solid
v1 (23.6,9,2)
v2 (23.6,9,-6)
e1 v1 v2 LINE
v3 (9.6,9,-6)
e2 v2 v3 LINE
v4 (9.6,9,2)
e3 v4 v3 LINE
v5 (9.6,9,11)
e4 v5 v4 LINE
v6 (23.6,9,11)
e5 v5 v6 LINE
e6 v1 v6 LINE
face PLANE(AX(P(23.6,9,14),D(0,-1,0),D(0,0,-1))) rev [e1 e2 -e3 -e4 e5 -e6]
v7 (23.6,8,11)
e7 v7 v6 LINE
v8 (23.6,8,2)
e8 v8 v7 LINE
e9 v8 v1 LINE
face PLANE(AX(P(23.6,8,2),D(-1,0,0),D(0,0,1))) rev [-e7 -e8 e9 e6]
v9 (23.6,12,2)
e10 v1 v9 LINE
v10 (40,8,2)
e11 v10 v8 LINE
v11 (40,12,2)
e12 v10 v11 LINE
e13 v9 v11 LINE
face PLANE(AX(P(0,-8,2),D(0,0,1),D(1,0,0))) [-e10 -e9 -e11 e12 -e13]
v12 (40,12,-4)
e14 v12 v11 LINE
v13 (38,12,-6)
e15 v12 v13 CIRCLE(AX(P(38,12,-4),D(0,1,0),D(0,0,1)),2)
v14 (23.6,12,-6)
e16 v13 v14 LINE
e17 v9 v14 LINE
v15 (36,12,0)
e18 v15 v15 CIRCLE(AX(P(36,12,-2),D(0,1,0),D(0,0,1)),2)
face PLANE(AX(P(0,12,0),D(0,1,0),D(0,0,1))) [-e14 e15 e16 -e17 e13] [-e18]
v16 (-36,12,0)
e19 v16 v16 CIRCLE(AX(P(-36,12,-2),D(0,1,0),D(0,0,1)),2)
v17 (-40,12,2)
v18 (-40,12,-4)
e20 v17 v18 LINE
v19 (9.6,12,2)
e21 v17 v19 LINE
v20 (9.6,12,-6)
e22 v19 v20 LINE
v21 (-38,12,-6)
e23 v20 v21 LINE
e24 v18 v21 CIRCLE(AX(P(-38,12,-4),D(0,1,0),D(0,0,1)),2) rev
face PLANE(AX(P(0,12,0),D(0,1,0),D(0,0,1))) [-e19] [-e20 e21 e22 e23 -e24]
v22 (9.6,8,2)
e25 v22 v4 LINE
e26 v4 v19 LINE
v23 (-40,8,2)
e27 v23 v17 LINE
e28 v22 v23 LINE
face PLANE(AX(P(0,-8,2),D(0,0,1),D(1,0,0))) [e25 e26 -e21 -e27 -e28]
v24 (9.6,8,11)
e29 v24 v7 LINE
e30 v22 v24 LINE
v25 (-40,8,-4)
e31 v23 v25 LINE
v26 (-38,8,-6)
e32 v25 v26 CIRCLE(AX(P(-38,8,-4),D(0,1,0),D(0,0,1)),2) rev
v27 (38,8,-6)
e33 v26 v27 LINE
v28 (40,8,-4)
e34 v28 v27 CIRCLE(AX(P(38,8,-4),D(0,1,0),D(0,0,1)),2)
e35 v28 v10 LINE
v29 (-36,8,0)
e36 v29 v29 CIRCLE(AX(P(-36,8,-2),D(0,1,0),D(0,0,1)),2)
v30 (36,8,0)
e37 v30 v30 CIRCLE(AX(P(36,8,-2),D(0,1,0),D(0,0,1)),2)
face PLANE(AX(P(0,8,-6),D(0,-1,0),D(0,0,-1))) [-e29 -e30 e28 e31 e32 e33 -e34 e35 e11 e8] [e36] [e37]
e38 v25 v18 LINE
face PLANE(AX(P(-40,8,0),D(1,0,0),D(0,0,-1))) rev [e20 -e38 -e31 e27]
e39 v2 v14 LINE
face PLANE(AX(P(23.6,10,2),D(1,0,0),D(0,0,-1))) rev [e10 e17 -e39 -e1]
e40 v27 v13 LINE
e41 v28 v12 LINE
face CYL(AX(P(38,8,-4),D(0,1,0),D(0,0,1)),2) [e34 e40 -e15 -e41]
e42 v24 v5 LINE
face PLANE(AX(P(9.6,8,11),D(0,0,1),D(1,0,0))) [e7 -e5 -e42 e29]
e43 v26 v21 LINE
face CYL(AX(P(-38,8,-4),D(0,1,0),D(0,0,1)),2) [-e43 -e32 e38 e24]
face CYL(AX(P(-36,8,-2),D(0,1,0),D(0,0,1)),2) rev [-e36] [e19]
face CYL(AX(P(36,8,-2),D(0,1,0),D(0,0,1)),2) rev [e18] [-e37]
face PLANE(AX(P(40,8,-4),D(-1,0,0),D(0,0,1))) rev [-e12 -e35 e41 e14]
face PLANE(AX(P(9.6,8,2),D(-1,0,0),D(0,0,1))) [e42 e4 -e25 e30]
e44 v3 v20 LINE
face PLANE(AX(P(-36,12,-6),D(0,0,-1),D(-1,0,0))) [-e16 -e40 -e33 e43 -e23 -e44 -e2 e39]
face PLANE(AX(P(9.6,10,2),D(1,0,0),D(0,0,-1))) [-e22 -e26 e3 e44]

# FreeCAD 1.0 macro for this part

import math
import FreeCAD as App
import Part
import Sketcher


def add_polygon(sketch, points):
    """Adds a closed chain of lines whose ends are joined by coincident constraints."""
    first, n = sketch.GeometryCount, len(points)
    for a, b in zip(points, points[1:] + points[:1]):
        sketch.addGeometry(Part.LineSegment(App.Vector(*a, 0), App.Vector(*b, 0)), False)
    for i in range(n):
        sketch.addConstraint(Sketcher.Constraint("Coincident", first + i, 2, first + (i + 1) % n, 1))

doc = App.newDocument("Part")
body = doc.addObject("PartDesign::Body", "Body")

sketch1 = doc.addObject("Sketcher::SketchObject", "Sketch")
body.addObject(sketch1)
sketch1.AttachmentSupport = (doc.XZ_Plane, [""])
sketch1.MapMode = "FlatFace"
add_polygon(sketch1, [(-40, 6), (40, 6), (40, -6), (-40, -6)])
sketch1.addConstraint([
    Sketcher.Constraint("Horizontal", 0),
    Sketcher.Constraint("Vertical", 1),
    Sketcher.Constraint("Horizontal", 2),
    Sketcher.Constraint("Vertical", 3),
    Sketcher.Constraint("Symmetric", 0, 2, 2, 2, -1, 1),
    Sketcher.Constraint("DistanceX", 0, 1, 0, 2, 80.0),
    Sketcher.Constraint("DistanceY", 1, 2, 1, 1, 12.0),
])
pad1 = doc.addObject("PartDesign::Pad", "Pad")
body.addObject(pad1)
pad1.Profile = sketch1
pad1.Length = 12
pad1.Reversed = True

sketch2 = doc.addObject("Sketcher::SketchObject", "Sketch001")
body.addObject(sketch2)
sketch2.AttachmentSupport = (doc.XY_Plane, [""])
sketch2.MapMode = "FlatFace"
sketch2.AttachmentOffset = App.Placement(App.Vector(0, 0, 6), App.Rotation())
add_polygon(sketch2, [(-28, 0), (28, 0), (28, 8), (-28, 8)])
add_polygon(sketch2, [(-40, 4), (-32, 4), (-32, 12), (-40, 12)])
add_polygon(sketch2, [(32, 4), (40, 4), (40, 12), (32, 12)])
sketch2.addConstraint([
    Sketcher.Constraint("Horizontal", 0),
    Sketcher.Constraint("Vertical", 1),
    Sketcher.Constraint("Horizontal", 2),
    Sketcher.Constraint("Vertical", 3),
    Sketcher.Constraint("Horizontal", 4),
    Sketcher.Constraint("Vertical", 5),
    Sketcher.Constraint("Horizontal", 6),
    Sketcher.Constraint("Vertical", 7),
    Sketcher.Constraint("Horizontal", 8),
    Sketcher.Constraint("Vertical", 9),
    Sketcher.Constraint("Horizontal", 10),
    Sketcher.Constraint("Vertical", 11),
    Sketcher.Constraint("Symmetric", 0, 2, 3, 2, -1, 1),
    Sketcher.Constraint("Symmetric", 7, 2, 8, 2, -2),
    Sketcher.Constraint("Symmetric", 5, 2, 10, 2, -2),
    Sketcher.Constraint("Equal", 10, 1),
    Sketcher.Constraint("Equal", 3, 5),
    Sketcher.Constraint("DistanceX", 0, 1, 0, 2, 56.0),
    Sketcher.Constraint("DistanceX", 4, 1, 4, 2, 8.0),
    Sketcher.Constraint("DistanceX", 4, 2, -1, 1, 32.0),
    Sketcher.Constraint("DistanceY", -1, 1, 4, 2, 4.0),
])
pocket1 = doc.addObject("PartDesign::Pocket", "Pocket")
body.addObject(pocket1)
pocket1.Profile = sketch2
pocket1.Length = 12

sketch3 = doc.addObject("Sketcher::SketchObject", "Sketch002")
body.addObject(sketch3)
sketch3.AttachmentSupport = (doc.XZ_Plane, [""])
sketch3.MapMode = "FlatFace"
sketch3.AttachmentOffset = App.Placement(App.Vector(0, 0, -12), App.Rotation())
sketch3.addGeometry([
    Part.LineSegment(App.Vector(-40, -6, 0), App.Vector(-40, -4, 0)),
    Part.ArcOfCircle(Part.Circle(App.Vector(-38, -4, 0), App.Vector(0, 0, 1), 2), math.radians(-180), math.radians(-90)),
    Part.LineSegment(App.Vector(-38, -6, 0), App.Vector(-40, -6, 0)),
    Part.Circle(App.Vector(-36, -2, 0), App.Vector(0, 0, 1), 2),
    Part.ArcOfCircle(Part.Circle(App.Vector(38, -4, 0), App.Vector(0, 0, 1), 2), math.radians(-90), math.radians(0)),
    Part.LineSegment(App.Vector(40, -4, 0), App.Vector(40, -6, 0)),
    Part.LineSegment(App.Vector(40, -6, 0), App.Vector(38, -6, 0)),
    Part.Circle(App.Vector(36, -2, 0), App.Vector(0, 0, 1), 2),
], False)
sketch3.addConstraint([
    Sketcher.Constraint("Tangent", 0, 2, 1, 1),
    Sketcher.Constraint("Tangent", 1, 2, 2, 1),
    Sketcher.Constraint("Coincident", 2, 2, 0, 1),
    Sketcher.Constraint("Tangent", 4, 2, 5, 1),
    Sketcher.Constraint("Coincident", 5, 2, 6, 1),
    Sketcher.Constraint("Tangent", 6, 2, 4, 1),
    Sketcher.Constraint("Vertical", 0),
    Sketcher.Constraint("Horizontal", 2),
    Sketcher.Constraint("Vertical", 5),
    Sketcher.Constraint("Horizontal", 6),
    Sketcher.Constraint("Equal", 1, 3),
    Sketcher.Constraint("Equal", 3, 4),
    Sketcher.Constraint("Equal", 4, 7),
    Sketcher.Constraint("Symmetric", 1, 3, 4, 3, -2),
    Sketcher.Constraint("Symmetric", 3, 3, 7, 3, -2),
    Sketcher.Constraint("Diameter", 3, 4.0),
    Sketcher.Constraint("DistanceX", 1, 3, -1, 1, 38.0),
    Sketcher.Constraint("DistanceY", 1, 3, -1, 1, 4.0),
    Sketcher.Constraint("DistanceX", 3, 3, -1, 1, 36.0),
    Sketcher.Constraint("DistanceY", 3, 3, -1, 1, 2.0),
])
pocket2 = doc.addObject("PartDesign::Pocket", "Pocket001")
body.addObject(pocket2)
pocket2.Profile = sketch3
pocket2.Length = 12
pocket2.Reversed = True

sketch4 = doc.addObject("Sketcher::SketchObject", "Sketch003")
body.addObject(sketch4)
sketch4.AttachmentSupport = (doc.XZ_Plane, [""])
sketch4.MapMode = "FlatFace"
sketch4.AttachmentOffset = App.Placement(App.Vector(0, 0, -12), App.Rotation())
add_polygon(sketch4, [(-21, -6), (-21, 6), (-12, 6), (-12, 0), (12, 0), (12, 6), (21, 6), (21, -6)])
sketch4.addConstraint([
    Sketcher.Constraint("Vertical", 0),
    Sketcher.Constraint("Horizontal", 1),
    Sketcher.Constraint("Vertical", 2),
    Sketcher.Constraint("Horizontal", 3),
    Sketcher.Constraint("Vertical", 4),
    Sketcher.Constraint("Horizontal", 5),
    Sketcher.Constraint("Vertical", 6),
    Sketcher.Constraint("Horizontal", 7),
    Sketcher.Constraint("PointOnObject", 2, 2, -1),
    Sketcher.Constraint("Horizontal", 1, 2, 4, 2),
    Sketcher.Constraint("DistanceX", 1, 1, 1, 2, 9.0),
    Sketcher.Constraint("DistanceY", 0, 1, 0, 2, 12.0),
    Sketcher.Constraint("DistanceY", 2, 2, 2, 1, 6.0),
    Sketcher.Constraint("DistanceX", 3, 1, 3, 2, 24.18),
    Sketcher.Constraint("DistanceX", 5, 1, 5, 2, 9.04),
    Sketcher.Constraint("DistanceX", 0, 2, -1, 1, 21.1),
])
pocket3 = doc.addObject("PartDesign::Pocket", "Pocket002")
body.addObject(pocket3)
pocket3.Profile = sketch4
pocket3.Length = 1
pocket3.Reversed = True

sketch5 = doc.addObject("Sketcher::SketchObject", "Sketch004")
body.addObject(sketch5)
sketch5.AttachmentSupport = (doc.XZ_Plane, [""])
sketch5.MapMode = "FlatFace"
sketch5.AttachmentOffset = App.Placement(App.Vector(0, 0, -12), App.Rotation())
add_polygon(sketch5, [(-40, 2), (-40, 6), (40, 6), (40, 2)])
sketch5.addConstraint([
    Sketcher.Constraint("Vertical", 0),
    Sketcher.Constraint("Horizontal", 1),
    Sketcher.Constraint("Vertical", 2),
    Sketcher.Constraint("Horizontal", 3),
    Sketcher.Constraint("DistanceX", 1, 1, 1, 2, 80.0),
    Sketcher.Constraint("DistanceY", 0, 1, 0, 2, 4.0),
    Sketcher.Constraint("DistanceX", 0, 2, -1, 1, 40.0),
    Sketcher.Constraint("DistanceY", -1, 1, 0, 2, 6.0),
])
pocket4 = doc.addObject("PartDesign::Pocket", "Pocket003")
body.addObject(pocket4)
pocket4.Profile = sketch5
pocket4.Length = 20
pocket4.Reversed = True

sketch6 = doc.addObject("Sketcher::SketchObject", "Sketch005")
body.addObject(sketch6)
sketch6.AttachmentSupport = (doc.XZ_Plane, [""])
sketch6.MapMode = "FlatFace"
sketch6.AttachmentOffset = App.Placement(App.Vector(0, 0, -12), App.Rotation())
add_polygon(sketch6, [(12.1, 0), (12.1, -6), (-21.1, -6), (-21.1, 2), (-12.1, 2), (-12.1, 0)])
sketch6.addConstraint([
    Sketcher.Constraint("Vertical", 0),
    Sketcher.Constraint("Horizontal", 1),
    Sketcher.Constraint("Vertical", 2),
    Sketcher.Constraint("Horizontal", 3),
    Sketcher.Constraint("Vertical", 4),
    Sketcher.Constraint("Horizontal", 5),
    Sketcher.Constraint("PointOnObject", 4, 2, -1),
    Sketcher.Constraint("DistanceX", 3, 1, 3, 2, 9.0),
    Sketcher.Constraint("DistanceY", 0, 2, 0, 1, 6.0),
    Sketcher.Constraint("DistanceY", 2, 1, 2, 2, 8.0),
    Sketcher.Constraint("DistanceX", 1, 2, 1, 1, 33.18),
    Sketcher.Constraint("DistanceX", 1, 2, -1, 1, 21.1),
])
pad2 = doc.addObject("PartDesign::Pad", "Pad001")
body.addObject(pad2)
pad2.Profile = sketch6
pad2.Length = 1

sketch7 = doc.addObject("Sketcher::SketchObject", "Sketch006")
body.addObject(sketch7)
sketch7.AttachmentSupport = (doc.XZ_Plane, [""])
sketch7.MapMode = "FlatFace"
sketch7.AttachmentOffset = App.Placement(App.Vector(0, 0, -12), App.Rotation())
add_polygon(sketch7, [(21.12, -6), (21.12, 2), (21.32, 2), (21.32, -6)])
add_polygon(sketch7, [(11.88, -6), (11.88, 2), (12.08, 2), (12.08, -6)])
sketch7.addConstraint([
    Sketcher.Constraint("Vertical", 0),
    Sketcher.Constraint("Horizontal", 1),
    Sketcher.Constraint("Vertical", 2),
    Sketcher.Constraint("Horizontal", 3),
    Sketcher.Constraint("Vertical", 4),
    Sketcher.Constraint("Horizontal", 5),
    Sketcher.Constraint("Vertical", 6),
    Sketcher.Constraint("Horizontal", 7),
    Sketcher.Constraint("Horizontal", 1, 2, 4, 2),
    Sketcher.Constraint("Horizontal", 3, 2, 6, 2),
    Sketcher.Constraint("Equal", 3, 5),
    Sketcher.Constraint("DistanceY", 0, 1, 0, 2, 8.0),
    Sketcher.Constraint("DistanceX", 1, 1, 1, 2, 0.2),
    Sketcher.Constraint("DistanceY", -1, 1, 0, 2, 2.0),
    Sketcher.Constraint("DistanceX", -1, 1, 0, 2, 21.12),
    Sketcher.Constraint("DistanceX", -1, 1, 4, 2, 11.88),
])
pocket5 = doc.addObject("PartDesign::Pocket", "Pocket004")
body.addObject(pocket5)
pocket5.Profile = sketch7
pocket5.Length = 1
pocket5.Reversed = True

sketch8 = doc.addObject("Sketcher::SketchObject", "Sketch007")
body.addObject(sketch8)
sketch8.AttachmentSupport = (doc.XZ_Plane, [""])
sketch8.MapMode = "FlatFace"
sketch8.AttachmentOffset = App.Placement(App.Vector(0, 0, -12), App.Rotation())
sketch8.addGeometry([
    Part.LineSegment(App.Vector(-40, 2, 0), App.Vector(-32, 2, 0)),
    Part.LineSegment(App.Vector(-32, 2, 0), App.Vector(-32, -6, 0)),
    Part.LineSegment(App.Vector(-32, -6, 0), App.Vector(-38, -6, 0)),
    Part.ArcOfCircle(Part.Circle(App.Vector(-38, -4, 0), App.Vector(0, 0, 1), 2), math.radians(-180), math.radians(-90)),
    Part.LineSegment(App.Vector(-40, -4, 0), App.Vector(-40, 2, 0)),
    Part.Circle(App.Vector(-36, -2, 0), App.Vector(0, 0, 1), 2),
    Part.LineSegment(App.Vector(32, -6, 0), App.Vector(32, 2, 0)),
    Part.LineSegment(App.Vector(32, 2, 0), App.Vector(40, 2, 0)),
    Part.LineSegment(App.Vector(40, 2, 0), App.Vector(40, -4, 0)),
    Part.ArcOfCircle(Part.Circle(App.Vector(38, -4, 0), App.Vector(0, 0, 1), 2), math.radians(-90), math.radians(0)),
    Part.LineSegment(App.Vector(38, -6, 0), App.Vector(32, -6, 0)),
    Part.Circle(App.Vector(36, -2, 0), App.Vector(0, 0, 1), 2),
], False)
sketch8.addConstraint([
    Sketcher.Constraint("Coincident", 0, 2, 1, 1),
    Sketcher.Constraint("Coincident", 1, 2, 2, 1),
    Sketcher.Constraint("Tangent", 2, 2, 3, 2),
    Sketcher.Constraint("Tangent", 3, 1, 4, 1),
    Sketcher.Constraint("Coincident", 4, 2, 0, 1),
    Sketcher.Constraint("Coincident", 6, 2, 7, 1),
    Sketcher.Constraint("Coincident", 7, 2, 8, 1),
    Sketcher.Constraint("Tangent", 8, 2, 9, 2),
    Sketcher.Constraint("Tangent", 9, 1, 10, 1),
    Sketcher.Constraint("Coincident", 10, 2, 6, 1),
    Sketcher.Constraint("Horizontal", 0),
    Sketcher.Constraint("Vertical", 1),
    Sketcher.Constraint("Horizontal", 2),
    Sketcher.Constraint("Vertical", 4),
    Sketcher.Constraint("Vertical", 6),
    Sketcher.Constraint("Horizontal", 7),
    Sketcher.Constraint("Vertical", 8),
    Sketcher.Constraint("Horizontal", 10),
    Sketcher.Constraint("Equal", 3, 5),
    Sketcher.Constraint("Equal", 5, 9),
    Sketcher.Constraint("Equal", 9, 11),
    Sketcher.Constraint("Symmetric", 3, 3, 9, 3, -2),
    Sketcher.Constraint("Symmetric", 5, 3, 11, 3, -2),
    Sketcher.Constraint("Symmetric", 0, 2, 6, 2, -2),
    Sketcher.Constraint("Equal", 7, 1),
    Sketcher.Constraint("Diameter", 5, 4.0),
    Sketcher.Constraint("DistanceX", 0, 1, 0, 2, 8.0),
    Sketcher.Constraint("DistanceX", 3, 3, -1, 1, 38.0),
    Sketcher.Constraint("DistanceY", 3, 3, -1, 1, 4.0),
    Sketcher.Constraint("DistanceX", 5, 3, -1, 1, 36.0),
    Sketcher.Constraint("DistanceY", 5, 3, -1, 1, 2.0),
])
pad3 = doc.addObject("PartDesign::Pad", "Pad002")
body.addObject(pad3)
pad3.Profile = sketch8
pad3.Length = 4

sketch9 = doc.addObject("Sketcher::SketchObject", "Sketch008")
body.addObject(sketch9)
sketch9.AttachmentSupport = (doc.XY_Plane, [""])
sketch9.MapMode = "FlatFace"
sketch9.AttachmentOffset = App.Placement(App.Vector(0, 0, 2), App.Rotation())
add_polygon(sketch9, [(-40, 8), (-40, 0), (40, 0), (40, 8)])
sketch9.addConstraint([
    Sketcher.Constraint("Vertical", 0),
    Sketcher.Constraint("Horizontal", 1),
    Sketcher.Constraint("Vertical", 2),
    Sketcher.Constraint("Horizontal", 3),
    Sketcher.Constraint("Symmetric", 0, 2, 1, 2, -1, 1),
    Sketcher.Constraint("DistanceX", 1, 1, 1, 2, 80.0),
    Sketcher.Constraint("DistanceY", 0, 2, 0, 1, 8.0),
])
pocket6 = doc.addObject("PartDesign::Pocket", "Pocket005")
body.addObject(pocket6)
pocket6.Profile = sketch9
pocket6.Length = 10

sketch10 = doc.addObject("Sketcher::SketchObject", "Sketch009")
body.addObject(sketch10)
sketch10.AttachmentSupport = (doc.XZ_Plane, [""])
sketch10.MapMode = "FlatFace"
sketch10.AttachmentOffset = App.Placement(App.Vector(0, 0, -12), App.Rotation())
add_polygon(sketch10, [(10, -6), (10, 2), (24, 2), (24, -6)])
sketch10.addConstraint([
    Sketcher.Constraint("Vertical", 0),
    Sketcher.Constraint("Horizontal", 1),
    Sketcher.Constraint("Vertical", 2),
    Sketcher.Constraint("Horizontal", 3),
    Sketcher.Constraint("DistanceX", 1, 1, 1, 2, 14.0),
    Sketcher.Constraint("DistanceY", 0, 1, 0, 2, 8.0),
    Sketcher.Constraint("DistanceY", -1, 1, 0, 2, 2.0),
    Sketcher.Constraint("DistanceX", -1, 1, 0, 2, 9.6),
])
pocket7 = doc.addObject("PartDesign::Pocket", "Pocket006")
body.addObject(pocket7)
pocket7.Profile = sketch10
pocket7.Length = 2
pocket7.Reversed = True

sketch11 = doc.addObject("Sketcher::SketchObject", "Sketch010")
body.addObject(sketch11)
sketch11.AttachmentSupport = (doc.XZ_Plane, [""])
sketch11.MapMode = "FlatFace"
sketch11.AttachmentOffset = App.Placement(App.Vector(0, 0, -10), App.Rotation())
add_polygon(sketch11, [(10, 2), (10, 11), (24, 11), (24, 2)])
sketch11.addConstraint([
    Sketcher.Constraint("Vertical", 0),
    Sketcher.Constraint("Horizontal", 1),
    Sketcher.Constraint("Vertical", 2),
    Sketcher.Constraint("Horizontal", 3),
    Sketcher.Constraint("DistanceX", 1, 1, 1, 2, 14.0),
    Sketcher.Constraint("DistanceY", 0, 1, 0, 2, 9.0),
    Sketcher.Constraint("DistanceY", -1, 1, 0, 2, 11.0),
    Sketcher.Constraint("DistanceX", -1, 1, 0, 2, 9.6),
])
pad4 = doc.addObject("PartDesign::Pad", "Pad003")
body.addObject(pad4)
pad4.Profile = sketch11
pad4.Length = 2

sketch12 = doc.addObject("Sketcher::SketchObject", "Sketch011")
body.addObject(sketch12)
sketch12.AttachmentSupport = (doc.XY_Plane, [""])
sketch12.MapMode = "FlatFace"
sketch12.AttachmentOffset = App.Placement(App.Vector(0, 0, -6), App.Rotation())
add_polygon(sketch12, [(23.6, 10), (23.6, 9), (9.6, 9), (9.6, 10)])
sketch12.addConstraint([
    Sketcher.Constraint("Vertical", 0),
    Sketcher.Constraint("Horizontal", 1),
    Sketcher.Constraint("Vertical", 2),
    Sketcher.Constraint("Horizontal", 3),
    Sketcher.Constraint("DistanceX", 1, 2, 1, 1, 14.0),
    Sketcher.Constraint("DistanceY", 0, 2, 0, 1, 1.0),
    Sketcher.Constraint("DistanceY", -1, 1, 0, 2, 9.0),
    Sketcher.Constraint("DistanceX", -1, 1, 0, 2, 23.6),
])
pocket8 = doc.addObject("PartDesign::Pocket", "Pocket007")
body.addObject(pocket8)
pocket8.Profile = sketch12
pocket8.Length = 20
pocket8.Reversed = True

doc.recompute()
